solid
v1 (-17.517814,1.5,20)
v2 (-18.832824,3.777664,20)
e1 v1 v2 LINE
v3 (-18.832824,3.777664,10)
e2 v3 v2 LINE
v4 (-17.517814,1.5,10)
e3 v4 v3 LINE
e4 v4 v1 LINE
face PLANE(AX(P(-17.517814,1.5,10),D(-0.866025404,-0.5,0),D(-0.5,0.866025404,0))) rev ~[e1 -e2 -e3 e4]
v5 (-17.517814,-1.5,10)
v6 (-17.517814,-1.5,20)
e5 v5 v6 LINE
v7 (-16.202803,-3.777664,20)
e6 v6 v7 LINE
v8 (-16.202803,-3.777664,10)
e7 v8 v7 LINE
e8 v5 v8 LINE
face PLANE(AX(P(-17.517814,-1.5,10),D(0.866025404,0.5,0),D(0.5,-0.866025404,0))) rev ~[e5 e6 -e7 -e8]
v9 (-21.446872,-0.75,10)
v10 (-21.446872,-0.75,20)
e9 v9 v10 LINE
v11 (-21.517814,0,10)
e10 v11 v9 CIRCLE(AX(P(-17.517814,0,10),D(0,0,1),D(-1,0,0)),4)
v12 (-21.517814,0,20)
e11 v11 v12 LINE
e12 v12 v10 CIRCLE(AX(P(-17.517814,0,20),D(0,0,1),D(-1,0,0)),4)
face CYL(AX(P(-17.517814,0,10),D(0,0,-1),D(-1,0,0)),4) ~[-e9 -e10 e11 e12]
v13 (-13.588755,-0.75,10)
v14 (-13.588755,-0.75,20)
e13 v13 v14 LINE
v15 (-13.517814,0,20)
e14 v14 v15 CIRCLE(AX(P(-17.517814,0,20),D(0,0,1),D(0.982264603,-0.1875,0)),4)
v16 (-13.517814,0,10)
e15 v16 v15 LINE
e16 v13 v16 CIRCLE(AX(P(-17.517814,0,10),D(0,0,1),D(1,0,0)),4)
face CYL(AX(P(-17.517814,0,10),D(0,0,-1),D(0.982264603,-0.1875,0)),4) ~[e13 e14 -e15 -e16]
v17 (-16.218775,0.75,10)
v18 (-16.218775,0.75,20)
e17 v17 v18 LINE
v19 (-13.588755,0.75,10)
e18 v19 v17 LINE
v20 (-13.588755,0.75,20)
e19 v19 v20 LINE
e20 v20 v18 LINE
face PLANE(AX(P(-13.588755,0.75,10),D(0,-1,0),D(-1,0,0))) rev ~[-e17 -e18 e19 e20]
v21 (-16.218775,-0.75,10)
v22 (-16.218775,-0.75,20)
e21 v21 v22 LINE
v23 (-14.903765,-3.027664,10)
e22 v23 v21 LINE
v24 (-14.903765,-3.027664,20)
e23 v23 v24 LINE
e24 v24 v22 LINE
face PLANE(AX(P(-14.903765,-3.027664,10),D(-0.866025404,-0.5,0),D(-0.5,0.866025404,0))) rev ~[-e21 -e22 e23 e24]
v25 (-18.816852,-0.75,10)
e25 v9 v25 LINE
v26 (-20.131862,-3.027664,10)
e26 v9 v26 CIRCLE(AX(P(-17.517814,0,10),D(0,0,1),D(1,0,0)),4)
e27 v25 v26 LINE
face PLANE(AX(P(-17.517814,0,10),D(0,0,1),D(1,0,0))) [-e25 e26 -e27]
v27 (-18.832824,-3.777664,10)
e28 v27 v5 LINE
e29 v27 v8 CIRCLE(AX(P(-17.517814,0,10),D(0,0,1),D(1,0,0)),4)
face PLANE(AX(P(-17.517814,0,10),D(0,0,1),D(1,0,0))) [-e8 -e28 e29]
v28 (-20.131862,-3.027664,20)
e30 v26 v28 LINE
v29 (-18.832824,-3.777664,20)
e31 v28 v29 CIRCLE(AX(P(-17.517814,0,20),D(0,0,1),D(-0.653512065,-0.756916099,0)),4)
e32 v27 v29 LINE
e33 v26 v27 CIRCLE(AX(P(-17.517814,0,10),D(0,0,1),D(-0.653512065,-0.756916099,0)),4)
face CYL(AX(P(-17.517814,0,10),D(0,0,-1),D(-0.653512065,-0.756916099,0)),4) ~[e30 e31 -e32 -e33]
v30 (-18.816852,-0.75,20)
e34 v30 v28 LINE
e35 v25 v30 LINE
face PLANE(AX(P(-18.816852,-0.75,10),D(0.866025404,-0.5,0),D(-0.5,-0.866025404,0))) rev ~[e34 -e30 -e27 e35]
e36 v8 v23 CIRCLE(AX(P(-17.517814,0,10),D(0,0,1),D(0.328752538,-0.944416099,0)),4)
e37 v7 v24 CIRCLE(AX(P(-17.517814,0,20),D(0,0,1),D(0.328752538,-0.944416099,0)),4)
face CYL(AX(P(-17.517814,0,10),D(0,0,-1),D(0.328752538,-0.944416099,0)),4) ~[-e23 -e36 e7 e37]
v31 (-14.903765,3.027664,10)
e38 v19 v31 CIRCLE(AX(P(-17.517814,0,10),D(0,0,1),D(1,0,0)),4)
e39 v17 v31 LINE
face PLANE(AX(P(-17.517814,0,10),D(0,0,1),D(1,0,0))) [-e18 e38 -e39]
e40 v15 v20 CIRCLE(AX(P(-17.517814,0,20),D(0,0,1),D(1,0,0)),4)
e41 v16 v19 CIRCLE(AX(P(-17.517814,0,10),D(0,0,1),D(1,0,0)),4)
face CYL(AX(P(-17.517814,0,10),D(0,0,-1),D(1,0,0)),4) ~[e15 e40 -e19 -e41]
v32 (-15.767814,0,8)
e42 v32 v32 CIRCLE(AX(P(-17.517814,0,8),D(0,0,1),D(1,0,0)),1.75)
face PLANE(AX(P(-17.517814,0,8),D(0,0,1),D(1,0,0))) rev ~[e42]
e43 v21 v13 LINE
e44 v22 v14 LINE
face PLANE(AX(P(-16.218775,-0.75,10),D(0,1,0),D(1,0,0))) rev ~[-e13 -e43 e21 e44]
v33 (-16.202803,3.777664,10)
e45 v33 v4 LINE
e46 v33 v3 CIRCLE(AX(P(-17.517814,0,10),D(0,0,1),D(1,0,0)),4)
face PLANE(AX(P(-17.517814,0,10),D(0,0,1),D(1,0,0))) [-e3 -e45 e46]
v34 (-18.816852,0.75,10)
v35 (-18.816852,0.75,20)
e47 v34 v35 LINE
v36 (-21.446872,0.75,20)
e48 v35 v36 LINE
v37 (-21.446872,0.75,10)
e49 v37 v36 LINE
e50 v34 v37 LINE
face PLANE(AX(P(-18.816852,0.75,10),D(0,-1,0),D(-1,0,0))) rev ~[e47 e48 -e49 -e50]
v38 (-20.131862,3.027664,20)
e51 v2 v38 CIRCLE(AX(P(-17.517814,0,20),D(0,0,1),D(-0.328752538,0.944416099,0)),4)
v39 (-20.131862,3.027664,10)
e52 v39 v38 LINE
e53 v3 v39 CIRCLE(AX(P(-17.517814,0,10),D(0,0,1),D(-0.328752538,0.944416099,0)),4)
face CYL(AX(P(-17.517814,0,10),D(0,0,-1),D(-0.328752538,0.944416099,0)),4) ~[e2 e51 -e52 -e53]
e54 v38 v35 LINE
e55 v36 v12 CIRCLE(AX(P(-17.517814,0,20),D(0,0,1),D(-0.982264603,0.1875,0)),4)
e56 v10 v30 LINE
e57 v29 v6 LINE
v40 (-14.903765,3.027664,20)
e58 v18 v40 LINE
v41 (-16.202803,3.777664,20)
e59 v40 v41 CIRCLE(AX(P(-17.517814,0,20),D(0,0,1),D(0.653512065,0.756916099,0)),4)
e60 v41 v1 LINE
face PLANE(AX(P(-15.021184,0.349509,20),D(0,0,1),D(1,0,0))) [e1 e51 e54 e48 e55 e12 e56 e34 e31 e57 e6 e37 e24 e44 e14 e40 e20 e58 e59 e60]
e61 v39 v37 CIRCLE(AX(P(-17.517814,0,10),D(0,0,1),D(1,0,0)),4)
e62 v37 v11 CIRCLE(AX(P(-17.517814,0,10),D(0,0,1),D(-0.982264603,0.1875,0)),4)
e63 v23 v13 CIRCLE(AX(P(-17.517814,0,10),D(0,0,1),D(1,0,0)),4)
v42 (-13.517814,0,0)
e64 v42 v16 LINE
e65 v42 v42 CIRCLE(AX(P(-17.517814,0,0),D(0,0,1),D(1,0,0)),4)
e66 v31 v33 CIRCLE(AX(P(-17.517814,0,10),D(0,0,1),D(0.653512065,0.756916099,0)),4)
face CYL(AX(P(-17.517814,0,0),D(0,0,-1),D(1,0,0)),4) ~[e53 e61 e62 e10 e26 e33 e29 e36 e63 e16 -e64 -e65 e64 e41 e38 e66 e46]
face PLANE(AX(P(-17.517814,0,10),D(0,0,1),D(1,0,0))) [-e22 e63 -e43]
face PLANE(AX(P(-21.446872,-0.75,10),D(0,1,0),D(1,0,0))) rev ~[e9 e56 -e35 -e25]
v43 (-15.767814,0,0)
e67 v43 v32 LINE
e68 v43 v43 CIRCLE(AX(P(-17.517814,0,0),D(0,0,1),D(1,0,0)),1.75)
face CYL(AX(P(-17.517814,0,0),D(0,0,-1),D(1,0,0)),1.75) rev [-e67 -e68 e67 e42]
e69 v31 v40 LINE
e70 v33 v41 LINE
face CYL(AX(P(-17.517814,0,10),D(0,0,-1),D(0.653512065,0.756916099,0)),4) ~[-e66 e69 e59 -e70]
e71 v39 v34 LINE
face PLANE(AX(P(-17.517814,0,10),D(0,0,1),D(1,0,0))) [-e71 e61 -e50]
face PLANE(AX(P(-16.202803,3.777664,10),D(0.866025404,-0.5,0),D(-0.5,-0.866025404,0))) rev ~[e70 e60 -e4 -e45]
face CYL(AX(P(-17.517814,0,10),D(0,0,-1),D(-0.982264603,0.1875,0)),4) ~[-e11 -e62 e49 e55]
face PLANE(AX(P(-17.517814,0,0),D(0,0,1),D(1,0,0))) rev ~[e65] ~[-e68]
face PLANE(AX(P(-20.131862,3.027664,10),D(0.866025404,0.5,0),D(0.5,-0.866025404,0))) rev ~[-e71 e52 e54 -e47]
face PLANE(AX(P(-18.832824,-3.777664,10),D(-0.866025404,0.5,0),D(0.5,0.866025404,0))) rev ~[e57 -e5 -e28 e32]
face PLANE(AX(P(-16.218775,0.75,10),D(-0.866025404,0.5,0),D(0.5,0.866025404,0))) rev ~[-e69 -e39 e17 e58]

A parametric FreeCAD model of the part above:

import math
import FreeCAD as App
import Part
import Sketcher
from FreeCAD import Vector
Q = App.Units.Quantity

doc = App.newDocument("Part")
body = doc.addObject("PartDesign::Body", "Body")

sketch1 = body.newObject("Sketcher::SketchObject", "Sketch")
sketch1.AttachmentSupport = (doc.getObject("XY_Plane"), [""])
sketch1.MapMode = "FlatFace"
sketch1.addGeometry(Part.Circle(Vector(-17.5, 0, 0), Vector(0, 0, 1), 4), False)
sketch1.addConstraint(Sketcher.Constraint("PointOnObject", 0, 3, -1))
sketch1.addConstraint(Sketcher.Constraint("Diameter", 0, 8.0))
sketch1.addConstraint(Sketcher.Constraint("DistanceX", 0, 3, -1, 1, 17.517814))
pad1 = body.newObject("PartDesign::Pad", "Pad")
pad1.Profile = sketch1
pad1.Length = 10

sketch2 = body.newObject("Sketcher::SketchObject", "Sketch001")
sketch2.AttachmentSupport = (doc.getObject("XY_Plane"), [""])
sketch2.MapMode = "FlatFace"
sketch2.addGeometry(Part.Circle(Vector(-17.5, 0, 0), Vector(0, 0, 1), 1.8), False)
sketch2.addConstraint(Sketcher.Constraint("PointOnObject", 0, 3, -1))
sketch2.addConstraint(Sketcher.Constraint("Diameter", 0, 3.5))
sketch2.addConstraint(Sketcher.Constraint("DistanceX", 0, 3, -1, 1, 17.517814))
pocket1 = body.newObject("PartDesign::Pocket", "Pocket")
pocket1.Profile = sketch2
pocket1.Length = 8
pocket1.Reversed = True

sketch3 = body.newObject("Sketcher::SketchObject", "Sketch002")
sketch3.AttachmentSupport = (doc.getObject("XY_Plane"), [""])
sketch3.MapMode = "FlatFace"
sketch3.AttachmentOffset = App.Placement(Vector(0, 0, 10), App.Rotation())
sketch3.addGeometry(Part.ArcOfCircle(Part.Circle(Vector(-17.5, 0, 0), Vector(0, 0, 1), 4), math.radians(0), math.radians(10.81)), False)
sketch3.addGeometry(Part.LineSegment(Vector(-13.6, 0.8, 0), Vector(-16.2, 0.8, 0)), False)
sketch3.addGeometry(Part.LineSegment(Vector(-16.2, 0.8, 0), Vector(-14.9, 3, 0)), False)
sketch3.addGeometry(Part.ArcOfCircle(Part.Circle(Vector(-17.5, 0, 0), Vector(0, 0, 1), 4), math.radians(49), math.radians(71)), False)
sketch3.addGeometry(Part.LineSegment(Vector(-16.2, 3.8, 0), Vector(-17.5, 1.5, 0)), False)
sketch3.addGeometry(Part.LineSegment(Vector(-17.5, 1.5, 0), Vector(-18.8, 3.8, 0)), False)
sketch3.addGeometry(Part.ArcOfCircle(Part.Circle(Vector(-17.5, 0, 0), Vector(0, 0, 1), 4), math.radians(109), math.radians(131)), False)
sketch3.addGeometry(Part.LineSegment(Vector(-20.1, 3, 0), Vector(-18.8, 0.8, 0)), False)
sketch3.addGeometry(Part.LineSegment(Vector(-18.8, 0.8, 0), Vector(-21.4, 0.8, 0)), False)
sketch3.addGeometry(Part.ArcOfCircle(Part.Circle(Vector(-17.5, 0, 0), Vector(0, 0, 1), 4), math.radians(169.19), math.radians(180)), False)
sketch3.addGeometry(Part.ArcOfCircle(Part.Circle(Vector(-17.5, 0, 0), Vector(0, 0, 1), 4), math.radians(180), math.radians(190.81)), False)
sketch3.addGeometry(Part.LineSegment(Vector(-21.4, -0.8, 0), Vector(-18.8, -0.8, 0)), False)
sketch3.addGeometry(Part.LineSegment(Vector(-18.8, -0.8, 0), Vector(-20.1, -3, 0)), False)
sketch3.addGeometry(Part.ArcOfCircle(Part.Circle(Vector(-17.5, 0, 0), Vector(0, 0, 1), 4), math.radians(-131), math.radians(-109)), False)
sketch3.addGeometry(Part.LineSegment(Vector(-18.8, -3.8, 0), Vector(-17.5, -1.5, 0)), False)
sketch3.addGeometry(Part.LineSegment(Vector(-17.5, -1.5, 0), Vector(-16.2, -3.8, 0)), False)
sketch3.addGeometry(Part.ArcOfCircle(Part.Circle(Vector(-17.5, 0, 0), Vector(0, 0, 1), 4), math.radians(-71), math.radians(-49)), False)
sketch3.addGeometry(Part.LineSegment(Vector(-14.9, -3, 0), Vector(-16.2, -0.8, 0)), False)
sketch3.addGeometry(Part.LineSegment(Vector(-16.2, -0.8, 0), Vector(-13.6, -0.8, 0)), False)
sketch3.addGeometry(Part.ArcOfCircle(Part.Circle(Vector(-17.5, 0, 0), Vector(0, 0, 1), 4), math.radians(-10.81), math.radians(0)), False)
sketch3.addConstraint(Sketcher.Constraint("Coincident", 0, 2, 1, 1))
sketch3.addConstraint(Sketcher.Constraint("Coincident", 1, 2, 2, 1))
sketch3.addConstraint(Sketcher.Constraint("Coincident", 2, 2, 3, 1))
sketch3.addConstraint(Sketcher.Constraint("Coincident", 3, 2, 4, 1))
sketch3.addConstraint(Sketcher.Constraint("Coincident", 4, 2, 5, 1))
sketch3.addConstraint(Sketcher.Constraint("Coincident", 5, 2, 6, 1))
sketch3.addConstraint(Sketcher.Constraint("Coincident", 6, 2, 7, 1))
sketch3.addConstraint(Sketcher.Constraint("Coincident", 7, 2, 8, 1))
sketch3.addConstraint(Sketcher.Constraint("Coincident", 8, 2, 9, 1))
sketch3.addConstraint(Sketcher.Constraint("Tangent", 9, 2, 10, 1))
sketch3.addConstraint(Sketcher.Constraint("Coincident", 10, 2, 11, 1))
sketch3.addConstraint(Sketcher.Constraint("Coincident", 11, 2, 12, 1))
sketch3.addConstraint(Sketcher.Constraint("Coincident", 12, 2, 13, 1))
sketch3.addConstraint(Sketcher.Constraint("Coincident", 13, 2, 14, 1))
sketch3.addConstraint(Sketcher.Constraint("Coincident", 14, 2, 15, 1))
sketch3.addConstraint(Sketcher.Constraint("Coincident", 15, 2, 16, 1))
sketch3.addConstraint(Sketcher.Constraint("Coincident", 16, 2, 17, 1))
sketch3.addConstraint(Sketcher.Constraint("Coincident", 17, 2, 18, 1))
sketch3.addConstraint(Sketcher.Constraint("Coincident", 18, 2, 19, 1))
sketch3.addConstraint(Sketcher.Constraint("Tangent", 19, 2, 0, 1))
sketch3.addConstraint(Sketcher.Constraint("Horizontal", 1))
sketch3.addConstraint(Sketcher.Constraint("Horizontal", 8))
sketch3.addConstraint(Sketcher.Constraint("Horizontal", 11))
sketch3.addConstraint(Sketcher.Constraint("Horizontal", 18))
sketch3.addConstraint(Sketcher.Constraint("Coincident", 3, 3, 0, 3))
sketch3.addConstraint(Sketcher.Constraint("Coincident", 6, 3, 0, 3))
sketch3.addConstraint(Sketcher.Constraint("Coincident", 9, 3, 0, 3))
sketch3.addConstraint(Sketcher.Constraint("Coincident", 13, 3, 0, 3))
sketch3.addConstraint(Sketcher.Constraint("Coincident", 16, 3, 0, 3))
sketch3.addConstraint(Sketcher.Constraint("Equal", 0, 3))
sketch3.addConstraint(Sketcher.Constraint("Equal", 3, 6))
sketch3.addConstraint(Sketcher.Constraint("Equal", 6, 9))
sketch3.addConstraint(Sketcher.Constraint("Equal", 9, 10))
sketch3.addConstraint(Sketcher.Constraint("Equal", 10, 13))
sketch3.addConstraint(Sketcher.Constraint("Equal", 13, 16))
sketch3.addConstraint(Sketcher.Constraint("Equal", 16, 19))
sketch3.addConstraint(Sketcher.Constraint("Symmetric", 8, 2, 10, 2, -1))
sketch3.addConstraint(Sketcher.Constraint("Symmetric", 4, 2, 14, 2, -1))
sketch3.addConstraint(Sketcher.Constraint("Symmetric", 1, 2, 17, 2, -1))
sketch3.addConstraint(Sketcher.Constraint("PointOnObject", 9, 2, -1))
sketch3.addConstraint(Sketcher.Constraint("PointOnObject", 19, 2, -1))
sketch3.addConstraint(Sketcher.Constraint("Parallel", 2, 4))
sketch3.addConstraint(Sketcher.Constraint("Parallel", 5, 7))
sketch3.addConstraint(Sketcher.Constraint("Parallel", 4, 12))
sketch3.addConstraint(Sketcher.Constraint("Parallel", 12, 14))
sketch3.addConstraint(Sketcher.Constraint("Parallel", 7, 15))
sketch3.addConstraint(Sketcher.Constraint("Parallel", 15, 17))
sketch3.addConstraint(Sketcher.Constraint("Horizontal", 3, 2, 5, 2))
sketch3.addConstraint(Sketcher.Constraint("Horizontal", 2, 2, 6, 2))
sketch3.addConstraint(Sketcher.Constraint("Horizontal", 1, 2, 7, 2))
sketch3.addConstraint(Sketcher.Constraint("Horizontal", 13, 2, 15, 2))
sketch3.addConstraint(Sketcher.Constraint("Horizontal", 12, 2, 16, 2))
sketch3.addConstraint(Sketcher.Constraint("Equal", 2, 4))
sketch3.addConstraint(Sketcher.Constraint("Radius", 0, 4.0))
sketch3.addConstraint(Sketcher.Constraint("Angle", 2, Q("60 deg")))
sketch3.addConstraint(Sketcher.Constraint("DistanceY", -1, 1, 4, 2, 1.5))
sketch3.addConstraint(Sketcher.Constraint("DistanceY", 10, 2, 8, 2, 1.5))
sketch3.addConstraint(Sketcher.Constraint("DistanceX", 6, 2, -1, 1, 20.131862))
pad2 = body.newObject("PartDesign::Pad", "Pad001")
pad2.Profile = sketch3
pad2.Length = 10

doc.recompute()
